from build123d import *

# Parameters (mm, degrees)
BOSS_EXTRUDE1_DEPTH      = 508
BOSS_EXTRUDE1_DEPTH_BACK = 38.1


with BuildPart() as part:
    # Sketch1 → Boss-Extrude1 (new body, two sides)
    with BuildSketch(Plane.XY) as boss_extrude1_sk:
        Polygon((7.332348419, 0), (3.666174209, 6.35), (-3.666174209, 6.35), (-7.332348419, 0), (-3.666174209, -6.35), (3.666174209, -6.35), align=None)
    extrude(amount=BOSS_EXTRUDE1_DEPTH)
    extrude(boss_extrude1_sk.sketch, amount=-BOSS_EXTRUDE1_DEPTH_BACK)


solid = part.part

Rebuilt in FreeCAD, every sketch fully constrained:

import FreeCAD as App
import Part
import Sketcher
Q = App.Units.Quantity


def add_polygon(sketch, points):
    """Adds a closed chain of lines whose ends are joined by coincident constraints."""
    first, n = sketch.GeometryCount, len(points)
    for a, b in zip(points, points[1:] + points[:1]):
        sketch.addGeometry(Part.LineSegment(App.Vector(*a, 0), App.Vector(*b, 0)), False)
    for i in range(n):
        sketch.addConstraint(Sketcher.Constraint("Coincident", first + i, 2, first + (i + 1) % n, 1))

doc = App.newDocument("Part")
params = doc.addObject("Spreadsheet::Sheet", "Params")
for row, (alias, value) in enumerate([
    ("pad1_length", "20 in"),
    ("pad1_length2", "1.5 in"),
], start=1):
    params.set(f"A{row}", alias)
    params.set(f"B{row}", "=" + value)
    params.setAlias(f"B{row}", alias)

body = doc.addObject("PartDesign::Body", "Body")

# Sketch on XY plane
sketch1 = doc.addObject("Sketcher::SketchObject", "Sketch")
body.addObject(sketch1)
sketch1.AttachmentSupport = (doc.XY_Plane, [""])
sketch1.MapMode = "FlatFace"
add_polygon(sketch1, [(7.332348, 0), (3.666174, 6.35), (-3.666174, 6.35), (-7.332348, 0), (-3.666174, -6.35), (3.666174, -6.35)])  # lines 0-5
sketch1.addConstraint(Sketcher.Constraint("Horizontal", 1))
sketch1.addConstraint(Sketcher.Constraint("Horizontal", 4))
sketch1.addConstraint(Sketcher.Constraint("Symmetric", 0, 2, 3, 2, -1, 1))
sketch1.addConstraint(Sketcher.Constraint("Symmetric", 2, 2, 5, 2, -1, 1))
sketch1.addConstraint(Sketcher.Constraint("PointOnObject", 2, 2, -1))
sketch1.addConstraint(Sketcher.Constraint("Parallel", 2, 5))
sketch1.addConstraint(Sketcher.Constraint("Vertical", 1, 2, 3, 2))
sketch1.addConstraint(Sketcher.Constraint("Angle", 0, Q("120 deg")))
sketch1.addConstraint(Sketcher.Constraint("DistanceY", 3, 2, 1, 2, Q("0.5 in")))
sketch1.addConstraint(Sketcher.Constraint("DistanceX", 1, 2, 1, 1, Q("7.332348 mm")))
pad1 = doc.addObject("PartDesign::Pad", "Pad")
body.addObject(pad1)
pad1.Profile = sketch1
pad1.Type = "TwoLengths"
pad1.setExpression("Length", "Params.pad1_length")
pad1.setExpression("Length2", "Params.pad1_length2")

doc.recompute()
